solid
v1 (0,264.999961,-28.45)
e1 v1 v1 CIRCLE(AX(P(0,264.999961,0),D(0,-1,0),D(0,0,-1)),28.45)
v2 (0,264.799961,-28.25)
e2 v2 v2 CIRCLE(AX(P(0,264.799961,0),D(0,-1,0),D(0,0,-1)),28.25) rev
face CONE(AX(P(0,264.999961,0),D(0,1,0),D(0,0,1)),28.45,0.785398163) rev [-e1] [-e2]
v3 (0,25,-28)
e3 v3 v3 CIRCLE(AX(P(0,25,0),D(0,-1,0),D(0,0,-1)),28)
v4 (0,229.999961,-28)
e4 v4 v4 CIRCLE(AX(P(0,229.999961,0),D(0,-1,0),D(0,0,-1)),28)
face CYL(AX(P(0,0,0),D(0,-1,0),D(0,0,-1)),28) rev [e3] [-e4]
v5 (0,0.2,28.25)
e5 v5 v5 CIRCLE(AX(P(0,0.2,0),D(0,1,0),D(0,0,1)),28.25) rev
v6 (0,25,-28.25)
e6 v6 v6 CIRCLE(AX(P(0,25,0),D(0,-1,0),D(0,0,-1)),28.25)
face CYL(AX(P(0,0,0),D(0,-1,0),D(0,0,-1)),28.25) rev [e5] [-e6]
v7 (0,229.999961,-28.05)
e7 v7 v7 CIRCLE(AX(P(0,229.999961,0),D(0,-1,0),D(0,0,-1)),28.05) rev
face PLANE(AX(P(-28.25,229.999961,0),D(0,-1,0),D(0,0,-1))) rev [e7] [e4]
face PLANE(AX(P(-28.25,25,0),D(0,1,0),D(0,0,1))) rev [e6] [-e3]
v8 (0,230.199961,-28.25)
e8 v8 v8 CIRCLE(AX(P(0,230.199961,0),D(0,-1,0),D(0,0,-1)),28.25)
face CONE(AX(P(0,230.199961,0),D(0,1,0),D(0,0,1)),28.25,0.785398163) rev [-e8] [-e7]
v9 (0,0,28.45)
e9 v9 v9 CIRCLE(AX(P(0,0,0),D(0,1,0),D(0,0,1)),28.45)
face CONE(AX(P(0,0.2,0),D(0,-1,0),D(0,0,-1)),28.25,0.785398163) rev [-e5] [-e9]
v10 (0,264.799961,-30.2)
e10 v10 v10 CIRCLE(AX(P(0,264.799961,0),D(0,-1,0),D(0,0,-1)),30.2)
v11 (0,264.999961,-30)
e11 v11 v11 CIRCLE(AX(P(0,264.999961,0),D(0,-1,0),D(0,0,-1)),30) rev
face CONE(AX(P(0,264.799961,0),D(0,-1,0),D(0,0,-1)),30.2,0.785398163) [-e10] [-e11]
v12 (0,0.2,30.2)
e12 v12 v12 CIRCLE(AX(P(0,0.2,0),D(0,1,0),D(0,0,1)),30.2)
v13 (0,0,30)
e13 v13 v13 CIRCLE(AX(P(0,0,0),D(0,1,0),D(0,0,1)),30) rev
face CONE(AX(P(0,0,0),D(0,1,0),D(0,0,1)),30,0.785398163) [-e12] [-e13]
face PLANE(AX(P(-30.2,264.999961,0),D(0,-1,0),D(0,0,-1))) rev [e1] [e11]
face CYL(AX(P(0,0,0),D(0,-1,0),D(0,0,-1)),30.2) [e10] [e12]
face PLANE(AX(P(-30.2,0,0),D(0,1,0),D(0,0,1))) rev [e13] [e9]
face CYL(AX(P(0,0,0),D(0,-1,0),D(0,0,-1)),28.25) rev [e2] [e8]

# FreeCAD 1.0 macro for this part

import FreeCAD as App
import Part
import Sketcher
Q = App.Units.Quantity


def edges_at(feature, points):
    """Names of the edges that pass closest to the given points."""
    edges = feature.Shape.Edges
    near = lambda p: min(range(len(edges)), key=lambda i: edges[i].distToShape(Part.Vertex(*p))[0])
    return sorted({f"Edge{near(p) + 1}" for p in points})

doc = App.newDocument("Part")
body = doc.addObject("PartDesign::Body", "Body")

sketch1 = body.newObject("Sketcher::SketchObject", "Sketch")
sketch1.AttachmentSupport = (doc.getObject("XY_Plane"), [""])
sketch1.MapMode = "FlatFace"
sketch1.addGeometry([
    Part.LineSegment(App.Vector(-30.2, 264.999961, 0), App.Vector(-30.2, 0, 0)),
    Part.LineSegment(App.Vector(-30.2, 0, 0), App.Vector(-28.25, 0, 0)),
    Part.LineSegment(App.Vector(-28.25, 0, 0), App.Vector(-28.25, 25, 0)),
    Part.LineSegment(App.Vector(-28.25, 25, 0), App.Vector(-28, 25, 0)),
    Part.LineSegment(App.Vector(-28, 25, 0), App.Vector(-28, 229.999961, 0)),
    Part.LineSegment(App.Vector(-28, 229.999961, 0), App.Vector(-28.25, 229.999961, 0)),
    Part.LineSegment(App.Vector(-28.25, 229.999961, 0), App.Vector(-28.25, 264.999961, 0)),
    Part.LineSegment(App.Vector(-28.25, 264.999961, 0), App.Vector(-30.2, 264.999961, 0)),
], False)
sketch1.addConstraint([
    Sketcher.Constraint("Coincident", 0, 2, 1, 1),
    Sketcher.Constraint("Coincident", 1, 2, 2, 1),
    Sketcher.Constraint("Coincident", 2, 2, 3, 1),
    Sketcher.Constraint("Coincident", 3, 2, 4, 1),
    Sketcher.Constraint("Coincident", 4, 2, 5, 1),
    Sketcher.Constraint("Coincident", 5, 2, 6, 1),
    Sketcher.Constraint("Coincident", 6, 2, 7, 1),
    Sketcher.Constraint("Coincident", 7, 2, 0, 1),
    Sketcher.Constraint("Vertical", 0),
    Sketcher.Constraint("Horizontal", 1),
    Sketcher.Constraint("Vertical", 2),
    Sketcher.Constraint("Horizontal", 3),
    Sketcher.Constraint("Vertical", 4),
    Sketcher.Constraint("Horizontal", 5),
    Sketcher.Constraint("Vertical", 6),
    Sketcher.Constraint("Horizontal", 7),
    Sketcher.Constraint("PointOnObject", 0, 2, -1),
    Sketcher.Constraint("Vertical", 2, 2, 5, 2),
    Sketcher.Constraint("DistanceY", 2, 1, 2, 2, Q("25 mm")),
    Sketcher.Constraint("DistanceY", 6, 1, 6, 2, Q("35 mm")),
    Sketcher.Constraint("DistanceX", 3, 2, -1, 1, Q("28 mm")),
    Sketcher.Constraint("DistanceX", 1, 1, 1, 2, Q("1.95 mm")),
    Sketcher.Constraint("DistanceX", 3, 1, 3, 2, Q("0.25 mm")),
    Sketcher.Constraint("DistanceY", 0, 2, 0, 1, Q("264.999961 mm")),
])
revolution = body.newObject("PartDesign::Revolution", "Revolution")
revolution.Profile = sketch1
revolution.ReferenceAxis = (sketch1, ["V_Axis"])
revolution.Angle = 360
doc.recompute()

chamfer = body.newObject("PartDesign::Chamfer", "Chamfer")
chamfer.Base = (revolution, edges_at(revolution, [(30.2, 265, 0)]))
chamfer.Size = 0.2
doc.recompute()

chamfer2 = body.newObject("PartDesign::Chamfer", "Chamfer001")
chamfer2.Base = (chamfer, edges_at(chamfer, [(28.25, 265, 0), (28.25, 230, 0)]))
chamfer2.Size = 0.2
doc.recompute()

chamfer3 = body.newObject("PartDesign::Chamfer", "Chamfer002")
chamfer3.Base = (chamfer2, edges_at(chamfer2, [(30.2, 0, 0)]))
chamfer3.Size = 0.2
doc.recompute()

chamfer4 = body.newObject("PartDesign::Chamfer", "Chamfer003")
chamfer4.Base = (chamfer3, edges_at(chamfer3, [(28.25, 0, 0)]))
chamfer4.Size = 0.2

doc.recompute()
